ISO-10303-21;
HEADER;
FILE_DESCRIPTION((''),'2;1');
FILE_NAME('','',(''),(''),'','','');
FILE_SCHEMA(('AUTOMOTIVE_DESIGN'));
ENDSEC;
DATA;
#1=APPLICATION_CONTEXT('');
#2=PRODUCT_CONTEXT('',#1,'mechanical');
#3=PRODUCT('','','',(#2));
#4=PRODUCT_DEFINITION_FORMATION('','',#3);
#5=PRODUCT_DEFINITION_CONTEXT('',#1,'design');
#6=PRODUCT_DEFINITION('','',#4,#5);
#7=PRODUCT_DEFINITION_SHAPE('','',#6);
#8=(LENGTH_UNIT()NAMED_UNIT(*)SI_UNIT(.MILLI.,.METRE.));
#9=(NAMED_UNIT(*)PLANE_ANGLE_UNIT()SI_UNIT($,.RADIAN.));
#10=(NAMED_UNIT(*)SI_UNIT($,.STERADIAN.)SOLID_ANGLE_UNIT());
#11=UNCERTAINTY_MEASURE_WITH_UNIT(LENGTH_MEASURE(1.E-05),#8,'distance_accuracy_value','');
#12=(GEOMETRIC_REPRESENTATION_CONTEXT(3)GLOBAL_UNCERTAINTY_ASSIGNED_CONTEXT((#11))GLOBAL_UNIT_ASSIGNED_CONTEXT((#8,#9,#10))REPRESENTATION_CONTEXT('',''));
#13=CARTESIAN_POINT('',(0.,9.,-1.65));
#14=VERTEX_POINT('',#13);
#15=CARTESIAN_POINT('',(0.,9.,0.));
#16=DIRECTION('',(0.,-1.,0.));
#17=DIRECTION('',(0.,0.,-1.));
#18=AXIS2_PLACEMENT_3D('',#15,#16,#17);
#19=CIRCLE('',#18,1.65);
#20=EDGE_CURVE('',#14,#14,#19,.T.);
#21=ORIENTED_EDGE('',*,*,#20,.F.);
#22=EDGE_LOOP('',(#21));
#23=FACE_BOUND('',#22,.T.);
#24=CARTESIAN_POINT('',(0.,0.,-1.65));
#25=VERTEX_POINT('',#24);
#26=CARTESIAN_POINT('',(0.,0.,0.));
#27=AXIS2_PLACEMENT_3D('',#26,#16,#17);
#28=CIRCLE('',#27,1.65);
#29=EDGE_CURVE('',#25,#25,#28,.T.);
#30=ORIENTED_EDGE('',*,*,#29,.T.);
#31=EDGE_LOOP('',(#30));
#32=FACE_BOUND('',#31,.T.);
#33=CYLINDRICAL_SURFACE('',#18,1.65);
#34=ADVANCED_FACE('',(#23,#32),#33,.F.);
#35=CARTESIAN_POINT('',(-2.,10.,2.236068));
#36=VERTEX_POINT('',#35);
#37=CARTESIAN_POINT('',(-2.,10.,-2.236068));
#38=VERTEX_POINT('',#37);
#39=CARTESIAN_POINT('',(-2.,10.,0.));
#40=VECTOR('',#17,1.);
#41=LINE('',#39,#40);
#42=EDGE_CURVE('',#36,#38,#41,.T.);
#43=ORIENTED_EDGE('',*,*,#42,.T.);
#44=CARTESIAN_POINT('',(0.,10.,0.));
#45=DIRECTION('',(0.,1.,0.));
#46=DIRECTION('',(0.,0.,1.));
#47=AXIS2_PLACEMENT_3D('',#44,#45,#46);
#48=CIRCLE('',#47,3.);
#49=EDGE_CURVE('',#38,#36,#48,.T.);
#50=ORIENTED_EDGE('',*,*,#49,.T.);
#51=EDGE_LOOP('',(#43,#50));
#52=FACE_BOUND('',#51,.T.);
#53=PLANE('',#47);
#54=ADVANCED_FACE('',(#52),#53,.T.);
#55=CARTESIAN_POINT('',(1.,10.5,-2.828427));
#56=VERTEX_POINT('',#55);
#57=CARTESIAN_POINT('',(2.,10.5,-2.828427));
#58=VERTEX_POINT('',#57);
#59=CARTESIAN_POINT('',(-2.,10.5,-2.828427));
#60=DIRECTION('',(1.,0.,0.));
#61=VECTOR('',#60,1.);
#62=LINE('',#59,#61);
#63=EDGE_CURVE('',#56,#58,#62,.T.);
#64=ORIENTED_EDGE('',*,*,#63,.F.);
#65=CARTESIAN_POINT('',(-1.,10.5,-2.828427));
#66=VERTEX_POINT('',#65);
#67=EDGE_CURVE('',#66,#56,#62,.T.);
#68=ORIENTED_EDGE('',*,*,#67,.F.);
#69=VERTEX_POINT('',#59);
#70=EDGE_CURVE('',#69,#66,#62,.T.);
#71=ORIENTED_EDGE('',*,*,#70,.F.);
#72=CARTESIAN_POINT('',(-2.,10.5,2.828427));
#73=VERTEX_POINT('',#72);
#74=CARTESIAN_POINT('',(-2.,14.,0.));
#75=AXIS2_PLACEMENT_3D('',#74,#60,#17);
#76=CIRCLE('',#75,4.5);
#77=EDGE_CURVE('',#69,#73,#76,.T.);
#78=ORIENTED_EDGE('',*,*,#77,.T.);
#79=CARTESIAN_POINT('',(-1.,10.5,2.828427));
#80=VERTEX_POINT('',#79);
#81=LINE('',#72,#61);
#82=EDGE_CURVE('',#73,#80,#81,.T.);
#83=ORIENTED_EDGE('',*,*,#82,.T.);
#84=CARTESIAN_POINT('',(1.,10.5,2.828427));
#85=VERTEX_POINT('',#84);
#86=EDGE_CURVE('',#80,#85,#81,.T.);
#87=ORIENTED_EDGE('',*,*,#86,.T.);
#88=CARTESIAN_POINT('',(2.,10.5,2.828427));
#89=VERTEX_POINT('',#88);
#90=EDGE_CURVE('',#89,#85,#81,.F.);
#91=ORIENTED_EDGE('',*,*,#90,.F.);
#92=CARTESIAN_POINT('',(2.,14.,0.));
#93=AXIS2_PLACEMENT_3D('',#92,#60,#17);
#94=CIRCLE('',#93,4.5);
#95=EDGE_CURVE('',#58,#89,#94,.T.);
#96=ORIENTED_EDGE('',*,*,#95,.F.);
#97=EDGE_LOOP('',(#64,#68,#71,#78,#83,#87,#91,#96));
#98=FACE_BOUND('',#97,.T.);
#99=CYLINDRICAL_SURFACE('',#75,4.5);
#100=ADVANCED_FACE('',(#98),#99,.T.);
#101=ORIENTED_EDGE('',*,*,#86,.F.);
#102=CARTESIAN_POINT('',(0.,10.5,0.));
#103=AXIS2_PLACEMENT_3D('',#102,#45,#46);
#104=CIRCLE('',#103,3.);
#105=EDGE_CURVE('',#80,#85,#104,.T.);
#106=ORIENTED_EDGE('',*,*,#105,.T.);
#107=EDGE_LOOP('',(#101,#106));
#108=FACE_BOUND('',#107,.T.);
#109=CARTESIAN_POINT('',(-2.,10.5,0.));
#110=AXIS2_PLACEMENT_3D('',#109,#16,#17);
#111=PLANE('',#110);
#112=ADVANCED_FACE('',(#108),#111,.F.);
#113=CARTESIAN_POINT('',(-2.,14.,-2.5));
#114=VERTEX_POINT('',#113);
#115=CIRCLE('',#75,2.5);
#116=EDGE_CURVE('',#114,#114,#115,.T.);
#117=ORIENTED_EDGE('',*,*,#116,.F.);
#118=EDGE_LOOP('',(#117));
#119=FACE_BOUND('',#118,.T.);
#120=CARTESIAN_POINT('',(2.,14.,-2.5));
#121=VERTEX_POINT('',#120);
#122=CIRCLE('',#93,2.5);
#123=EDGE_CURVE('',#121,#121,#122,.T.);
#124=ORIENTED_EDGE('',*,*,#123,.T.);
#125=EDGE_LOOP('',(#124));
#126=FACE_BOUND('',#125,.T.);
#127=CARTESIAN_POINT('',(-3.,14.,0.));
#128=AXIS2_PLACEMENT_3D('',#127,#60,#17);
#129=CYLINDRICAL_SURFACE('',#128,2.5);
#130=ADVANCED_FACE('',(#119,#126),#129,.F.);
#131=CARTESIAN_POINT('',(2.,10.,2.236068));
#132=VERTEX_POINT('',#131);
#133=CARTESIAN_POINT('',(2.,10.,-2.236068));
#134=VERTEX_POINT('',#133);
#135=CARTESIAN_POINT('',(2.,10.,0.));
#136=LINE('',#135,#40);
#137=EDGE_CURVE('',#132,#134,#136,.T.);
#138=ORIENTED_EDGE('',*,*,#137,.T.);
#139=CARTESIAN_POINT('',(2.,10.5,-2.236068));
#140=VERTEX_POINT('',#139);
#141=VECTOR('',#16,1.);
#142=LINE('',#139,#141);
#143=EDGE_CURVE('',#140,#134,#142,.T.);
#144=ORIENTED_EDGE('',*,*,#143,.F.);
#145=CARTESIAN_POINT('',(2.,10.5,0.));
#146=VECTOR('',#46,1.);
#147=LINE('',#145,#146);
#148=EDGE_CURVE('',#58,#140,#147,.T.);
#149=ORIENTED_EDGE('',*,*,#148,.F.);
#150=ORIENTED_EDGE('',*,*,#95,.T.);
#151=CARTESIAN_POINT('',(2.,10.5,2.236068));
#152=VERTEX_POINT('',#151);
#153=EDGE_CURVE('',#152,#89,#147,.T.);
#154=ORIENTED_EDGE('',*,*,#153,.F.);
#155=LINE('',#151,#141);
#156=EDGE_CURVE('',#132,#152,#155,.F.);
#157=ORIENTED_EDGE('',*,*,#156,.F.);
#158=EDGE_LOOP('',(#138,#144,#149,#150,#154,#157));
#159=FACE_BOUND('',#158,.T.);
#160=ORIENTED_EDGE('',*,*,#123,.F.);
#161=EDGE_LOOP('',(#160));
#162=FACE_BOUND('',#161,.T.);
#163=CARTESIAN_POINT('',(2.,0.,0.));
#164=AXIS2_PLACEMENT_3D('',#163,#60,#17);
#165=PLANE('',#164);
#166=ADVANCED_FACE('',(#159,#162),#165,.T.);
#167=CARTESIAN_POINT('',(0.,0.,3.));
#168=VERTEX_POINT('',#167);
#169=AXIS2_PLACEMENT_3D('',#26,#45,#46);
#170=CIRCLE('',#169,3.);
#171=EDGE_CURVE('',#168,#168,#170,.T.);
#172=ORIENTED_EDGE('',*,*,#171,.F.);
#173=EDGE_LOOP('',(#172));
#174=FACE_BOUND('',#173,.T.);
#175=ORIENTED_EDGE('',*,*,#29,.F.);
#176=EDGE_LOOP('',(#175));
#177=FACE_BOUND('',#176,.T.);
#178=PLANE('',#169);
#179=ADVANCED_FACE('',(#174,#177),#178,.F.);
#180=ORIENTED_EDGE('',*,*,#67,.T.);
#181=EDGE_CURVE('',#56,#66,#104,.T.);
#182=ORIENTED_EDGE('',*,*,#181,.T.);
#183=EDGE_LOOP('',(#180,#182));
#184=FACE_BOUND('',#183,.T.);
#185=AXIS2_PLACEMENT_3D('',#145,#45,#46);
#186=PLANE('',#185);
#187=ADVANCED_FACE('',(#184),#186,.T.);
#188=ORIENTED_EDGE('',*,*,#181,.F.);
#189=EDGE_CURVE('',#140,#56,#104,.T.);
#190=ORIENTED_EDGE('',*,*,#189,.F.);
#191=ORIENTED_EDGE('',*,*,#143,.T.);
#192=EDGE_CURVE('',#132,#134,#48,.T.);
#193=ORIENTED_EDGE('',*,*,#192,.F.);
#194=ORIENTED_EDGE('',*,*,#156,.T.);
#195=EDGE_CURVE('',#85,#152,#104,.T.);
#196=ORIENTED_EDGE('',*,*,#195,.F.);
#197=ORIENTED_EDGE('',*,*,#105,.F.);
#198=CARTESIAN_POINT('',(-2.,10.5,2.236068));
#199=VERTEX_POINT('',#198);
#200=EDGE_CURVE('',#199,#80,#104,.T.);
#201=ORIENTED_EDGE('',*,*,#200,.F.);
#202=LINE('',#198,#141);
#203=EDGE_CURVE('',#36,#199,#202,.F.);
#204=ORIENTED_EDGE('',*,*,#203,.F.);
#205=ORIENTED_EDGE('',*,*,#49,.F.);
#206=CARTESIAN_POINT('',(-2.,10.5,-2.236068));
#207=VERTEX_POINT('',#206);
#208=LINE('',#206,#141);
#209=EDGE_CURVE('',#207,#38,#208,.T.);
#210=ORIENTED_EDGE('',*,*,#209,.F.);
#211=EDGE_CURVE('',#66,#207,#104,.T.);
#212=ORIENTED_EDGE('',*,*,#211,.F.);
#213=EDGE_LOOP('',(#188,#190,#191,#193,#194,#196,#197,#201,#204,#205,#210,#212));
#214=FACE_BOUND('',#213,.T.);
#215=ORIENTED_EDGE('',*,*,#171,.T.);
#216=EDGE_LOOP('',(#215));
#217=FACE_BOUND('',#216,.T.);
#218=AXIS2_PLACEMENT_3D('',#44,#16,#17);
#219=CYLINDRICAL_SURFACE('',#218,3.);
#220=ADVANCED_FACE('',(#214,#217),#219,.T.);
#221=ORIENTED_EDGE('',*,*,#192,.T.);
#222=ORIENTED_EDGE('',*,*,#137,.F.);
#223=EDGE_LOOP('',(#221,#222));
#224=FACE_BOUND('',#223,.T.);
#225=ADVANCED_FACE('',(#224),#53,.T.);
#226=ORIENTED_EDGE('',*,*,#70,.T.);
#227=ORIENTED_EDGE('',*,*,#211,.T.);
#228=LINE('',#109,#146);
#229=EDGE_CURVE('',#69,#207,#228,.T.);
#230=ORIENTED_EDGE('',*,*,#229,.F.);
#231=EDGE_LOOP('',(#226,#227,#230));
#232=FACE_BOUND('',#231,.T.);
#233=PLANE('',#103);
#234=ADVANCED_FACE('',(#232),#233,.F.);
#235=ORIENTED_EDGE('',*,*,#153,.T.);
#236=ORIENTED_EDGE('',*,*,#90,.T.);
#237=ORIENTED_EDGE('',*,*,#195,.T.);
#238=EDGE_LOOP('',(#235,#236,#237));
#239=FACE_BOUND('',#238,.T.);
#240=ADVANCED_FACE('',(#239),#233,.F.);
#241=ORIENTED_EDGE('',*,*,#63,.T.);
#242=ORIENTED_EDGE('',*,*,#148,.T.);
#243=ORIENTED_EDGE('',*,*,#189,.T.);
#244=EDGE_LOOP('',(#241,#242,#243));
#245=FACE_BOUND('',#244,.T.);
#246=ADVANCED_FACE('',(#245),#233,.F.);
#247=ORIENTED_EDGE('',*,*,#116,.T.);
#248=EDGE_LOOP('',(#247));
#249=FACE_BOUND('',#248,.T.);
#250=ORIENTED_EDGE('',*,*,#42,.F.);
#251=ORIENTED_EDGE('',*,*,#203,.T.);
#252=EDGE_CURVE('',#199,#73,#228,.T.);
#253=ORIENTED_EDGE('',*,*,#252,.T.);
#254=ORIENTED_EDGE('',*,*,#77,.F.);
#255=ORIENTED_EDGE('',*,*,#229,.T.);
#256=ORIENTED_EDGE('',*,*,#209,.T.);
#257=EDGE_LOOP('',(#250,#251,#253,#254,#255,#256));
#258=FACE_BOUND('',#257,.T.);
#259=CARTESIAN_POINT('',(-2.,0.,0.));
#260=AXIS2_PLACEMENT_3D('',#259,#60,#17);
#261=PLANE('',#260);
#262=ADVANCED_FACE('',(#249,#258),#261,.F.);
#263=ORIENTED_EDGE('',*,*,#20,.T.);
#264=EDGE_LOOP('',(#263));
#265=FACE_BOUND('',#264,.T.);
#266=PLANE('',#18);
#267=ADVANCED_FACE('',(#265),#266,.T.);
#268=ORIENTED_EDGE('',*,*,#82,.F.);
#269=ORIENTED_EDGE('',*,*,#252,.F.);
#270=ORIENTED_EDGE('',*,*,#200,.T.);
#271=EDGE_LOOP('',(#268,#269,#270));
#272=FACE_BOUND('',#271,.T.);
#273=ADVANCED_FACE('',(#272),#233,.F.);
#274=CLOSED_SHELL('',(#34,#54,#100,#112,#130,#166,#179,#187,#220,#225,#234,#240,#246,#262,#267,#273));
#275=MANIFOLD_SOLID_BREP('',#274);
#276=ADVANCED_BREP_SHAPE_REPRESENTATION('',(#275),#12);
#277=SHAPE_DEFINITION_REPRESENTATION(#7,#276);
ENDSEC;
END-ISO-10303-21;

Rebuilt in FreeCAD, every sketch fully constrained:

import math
import FreeCAD as App
import Part
import Sketcher
Q = App.Units.Quantity

doc = App.newDocument("Part")
body = doc.addObject("PartDesign::Body", "Body")

# Sketch on XZ plane
sketch1 = body.newObject("Sketcher::SketchObject", "Sketch")
sketch1.AttachmentSupport = (doc.getObject("XZ_Plane"), [""])
sketch1.MapMode = "FlatFace"
sketch1.addGeometry(Part.Circle(App.Vector(0, 0, 0), App.Vector(0, 0, 1), 3), False)
sketch1.addConstraint([
    Sketcher.Constraint("Coincident", 0, 3, -1, 1),
    Sketcher.Constraint("Diameter", 0, Q("6 mm")),
])
pad1 = body.newObject("PartDesign::Pad", "Pad")
pad1.Profile = sketch1
pad1.Length = 10
pad1.Reversed = True

# Sketch on XZ plane
sketch2 = body.newObject("Sketcher::SketchObject", "Sketch001")
sketch2.AttachmentSupport = (doc.getObject("XZ_Plane"), [""])
sketch2.MapMode = "FlatFace"
sketch2.addGeometry(Part.Circle(App.Vector(0, 0, 0), App.Vector(0, 0, 1), 1.6), False)
sketch2.addConstraint([
    Sketcher.Constraint("Coincident", 0, 3, -1, 1),
    Sketcher.Constraint("Diameter", 0, Q("3.3 mm")),
])
pocket1 = body.newObject("PartDesign::Pocket", "Pocket")
pocket1.Profile = sketch2
pocket1.Length = 9

# Sketch on YZ plane
sketch3 = body.newObject("Sketcher::SketchObject", "Sketch002")
sketch3.AttachmentSupport = (doc.getObject("YZ_Plane"), [""])
sketch3.MapMode = "FlatFace"
sketch3.addGeometry([
    Part.ArcOfCircle(Part.Circle(App.Vector(14, 0, 0), App.Vector(0, 0, 1), 4.5), math.radians(-141), math.radians(141)),  # 0
    Part.LineSegment(App.Vector(10.5, 2.83, 0), App.Vector(10.5, 3, 0)),  # 1
    Part.LineSegment(App.Vector(10.5, 3, 0), App.Vector(10, 3, 0)),  # 2
    Part.LineSegment(App.Vector(10, 3, 0), App.Vector(10, 2.06, 0)),  # 3
    Part.ArcOfCircle(Part.Circle(App.Vector(14, 0, 0), App.Vector(0, 0, 1), 4.5), math.radians(153), math.radians(207)),  # 4
    Part.LineSegment(App.Vector(10, -2.06, 0), App.Vector(10, -3, 0)),  # 5
    Part.LineSegment(App.Vector(10, -3, 0), App.Vector(10.5, -3, 0)),  # 6
    Part.LineSegment(App.Vector(10.5, -3, 0), App.Vector(10.5, -2.83, 0)),  # 7
], False)
sketch3.addConstraint([
    Sketcher.Constraint("Coincident", 0, 2, 1, 1),
    Sketcher.Constraint("Coincident", 1, 2, 2, 1),
    Sketcher.Constraint("Coincident", 2, 2, 3, 1),
    Sketcher.Constraint("Coincident", 3, 2, 4, 1),
    Sketcher.Constraint("Coincident", 4, 2, 5, 1),
    Sketcher.Constraint("Coincident", 5, 2, 6, 1),
    Sketcher.Constraint("Coincident", 6, 2, 7, 1),
    Sketcher.Constraint("Coincident", 7, 2, 0, 1),
    Sketcher.Constraint("Vertical", 1),
    Sketcher.Constraint("Horizontal", 2),
    Sketcher.Constraint("Vertical", 3),
    Sketcher.Constraint("Vertical", 5),
    Sketcher.Constraint("Horizontal", 6),
    Sketcher.Constraint("Vertical", 7),
    Sketcher.Constraint("Coincident", 4, 3, 0, 3),
    Sketcher.Constraint("Equal", 0, 4),
    Sketcher.Constraint("Symmetric", 3, 2, 4, 2, -1),
    Sketcher.Constraint("Symmetric", 1, 2, 6, 2, -1),
    Sketcher.Constraint("Radius", 0, Q("4.5 mm")),
    Sketcher.Constraint("DistanceX", 2, 2, 2, 1, Q("0.5 mm")),
    Sketcher.Constraint("DistanceX", -1, 1, 0, 3, Q("14 mm")),
    Sketcher.Constraint("DistanceY", -1, 1, 1, 2, Q("3 mm")),
    Sketcher.Constraint("DistanceX", -1, 1, 2, 2, Q("10 mm")),
])
pad2 = body.newObject("PartDesign::Pad", "Pad001")
pad2.Profile = sketch3
pad2.Type = "TwoLengths"
pad2.Length = 2
pad2.Length2 = 2

# Sketch on YZ plane
sketch4 = body.newObject("Sketcher::SketchObject", "Sketch003")
sketch4.AttachmentSupport = (doc.getObject("YZ_Plane"), [""])
sketch4.MapMode = "FlatFace"
sketch4.AttachmentOffset = App.Placement(App.Vector(0, 0, 2), App.Rotation())
sketch4.addGeometry(Part.Circle(App.Vector(14, 0, 0), App.Vector(0, 0, 1), 2.5), False)
sketch4.addConstraint([
    Sketcher.Constraint("PointOnObject", 0, 3, -1),
    Sketcher.Constraint("Diameter", 0, Q("5 mm")),
    Sketcher.Constraint("DistanceX", -1, 1, 0, 3, Q("14 mm")),
])
pocket2 = body.newObject("PartDesign::Pocket", "Pocket001")
pocket2.Profile = sketch4
pocket2.Type = "ThroughAll"

# Sketch on XZ plane
sketch5 = body.newObject("Sketcher::SketchObject", "Sketch004")
sketch5.AttachmentSupport = (doc.getObject("XZ_Plane"), [""])
sketch5.MapMode = "FlatFace"
sketch5.addGeometry([
    Part.LineSegment(App.Vector(-6.1, -7.6, 0), App.Vector(-6.1, 7.6, 0)),  # 0
    Part.LineSegment(App.Vector(-6.1, 7.6, 0), App.Vector(6.1, 7.6, 0)),  # 1
    Part.LineSegment(App.Vector(6.1, 7.6, 0), App.Vector(6.1, -7.6, 0)),  # 2
    Part.LineSegment(App.Vector(6.1, -7.6, 0), App.Vector(-6.1, -7.6, 0)),  # 3
    Part.Circle(App.Vector(0, 0, 0), App.Vector(0, 0, 1), 3),  # 4
], False)
sketch5.addConstraint([
    Sketcher.Constraint("Coincident", 0, 2, 1, 1),
    Sketcher.Constraint("Coincident", 1, 2, 2, 1),
    Sketcher.Constraint("Coincident", 2, 2, 3, 1),
    Sketcher.Constraint("Coincident", 3, 2, 0, 1),
    Sketcher.Constraint("Vertical", 0),
    Sketcher.Constraint("Horizontal", 1),
    Sketcher.Constraint("Vertical", 2),
    Sketcher.Constraint("Horizontal", 3),
    Sketcher.Constraint("Coincident", 4, 3, -1, 1),
    Sketcher.Constraint("Symmetric", 0, 2, 2, 2, -1, 1),
    Sketcher.Constraint("Diameter", 4, Q("6 mm")),
    Sketcher.Constraint("DistanceX", 1, 1, 1, 2, Q("12.286 mm")),
    Sketcher.Constraint("DistanceY", 0, 1, 0, 2, Q("15.286 mm")),
])
pocket3 = body.newObject("PartDesign::Pocket", "Pocket002")
pocket3.Profile = sketch5
pocket3.Length = 10.5

doc.recompute()
